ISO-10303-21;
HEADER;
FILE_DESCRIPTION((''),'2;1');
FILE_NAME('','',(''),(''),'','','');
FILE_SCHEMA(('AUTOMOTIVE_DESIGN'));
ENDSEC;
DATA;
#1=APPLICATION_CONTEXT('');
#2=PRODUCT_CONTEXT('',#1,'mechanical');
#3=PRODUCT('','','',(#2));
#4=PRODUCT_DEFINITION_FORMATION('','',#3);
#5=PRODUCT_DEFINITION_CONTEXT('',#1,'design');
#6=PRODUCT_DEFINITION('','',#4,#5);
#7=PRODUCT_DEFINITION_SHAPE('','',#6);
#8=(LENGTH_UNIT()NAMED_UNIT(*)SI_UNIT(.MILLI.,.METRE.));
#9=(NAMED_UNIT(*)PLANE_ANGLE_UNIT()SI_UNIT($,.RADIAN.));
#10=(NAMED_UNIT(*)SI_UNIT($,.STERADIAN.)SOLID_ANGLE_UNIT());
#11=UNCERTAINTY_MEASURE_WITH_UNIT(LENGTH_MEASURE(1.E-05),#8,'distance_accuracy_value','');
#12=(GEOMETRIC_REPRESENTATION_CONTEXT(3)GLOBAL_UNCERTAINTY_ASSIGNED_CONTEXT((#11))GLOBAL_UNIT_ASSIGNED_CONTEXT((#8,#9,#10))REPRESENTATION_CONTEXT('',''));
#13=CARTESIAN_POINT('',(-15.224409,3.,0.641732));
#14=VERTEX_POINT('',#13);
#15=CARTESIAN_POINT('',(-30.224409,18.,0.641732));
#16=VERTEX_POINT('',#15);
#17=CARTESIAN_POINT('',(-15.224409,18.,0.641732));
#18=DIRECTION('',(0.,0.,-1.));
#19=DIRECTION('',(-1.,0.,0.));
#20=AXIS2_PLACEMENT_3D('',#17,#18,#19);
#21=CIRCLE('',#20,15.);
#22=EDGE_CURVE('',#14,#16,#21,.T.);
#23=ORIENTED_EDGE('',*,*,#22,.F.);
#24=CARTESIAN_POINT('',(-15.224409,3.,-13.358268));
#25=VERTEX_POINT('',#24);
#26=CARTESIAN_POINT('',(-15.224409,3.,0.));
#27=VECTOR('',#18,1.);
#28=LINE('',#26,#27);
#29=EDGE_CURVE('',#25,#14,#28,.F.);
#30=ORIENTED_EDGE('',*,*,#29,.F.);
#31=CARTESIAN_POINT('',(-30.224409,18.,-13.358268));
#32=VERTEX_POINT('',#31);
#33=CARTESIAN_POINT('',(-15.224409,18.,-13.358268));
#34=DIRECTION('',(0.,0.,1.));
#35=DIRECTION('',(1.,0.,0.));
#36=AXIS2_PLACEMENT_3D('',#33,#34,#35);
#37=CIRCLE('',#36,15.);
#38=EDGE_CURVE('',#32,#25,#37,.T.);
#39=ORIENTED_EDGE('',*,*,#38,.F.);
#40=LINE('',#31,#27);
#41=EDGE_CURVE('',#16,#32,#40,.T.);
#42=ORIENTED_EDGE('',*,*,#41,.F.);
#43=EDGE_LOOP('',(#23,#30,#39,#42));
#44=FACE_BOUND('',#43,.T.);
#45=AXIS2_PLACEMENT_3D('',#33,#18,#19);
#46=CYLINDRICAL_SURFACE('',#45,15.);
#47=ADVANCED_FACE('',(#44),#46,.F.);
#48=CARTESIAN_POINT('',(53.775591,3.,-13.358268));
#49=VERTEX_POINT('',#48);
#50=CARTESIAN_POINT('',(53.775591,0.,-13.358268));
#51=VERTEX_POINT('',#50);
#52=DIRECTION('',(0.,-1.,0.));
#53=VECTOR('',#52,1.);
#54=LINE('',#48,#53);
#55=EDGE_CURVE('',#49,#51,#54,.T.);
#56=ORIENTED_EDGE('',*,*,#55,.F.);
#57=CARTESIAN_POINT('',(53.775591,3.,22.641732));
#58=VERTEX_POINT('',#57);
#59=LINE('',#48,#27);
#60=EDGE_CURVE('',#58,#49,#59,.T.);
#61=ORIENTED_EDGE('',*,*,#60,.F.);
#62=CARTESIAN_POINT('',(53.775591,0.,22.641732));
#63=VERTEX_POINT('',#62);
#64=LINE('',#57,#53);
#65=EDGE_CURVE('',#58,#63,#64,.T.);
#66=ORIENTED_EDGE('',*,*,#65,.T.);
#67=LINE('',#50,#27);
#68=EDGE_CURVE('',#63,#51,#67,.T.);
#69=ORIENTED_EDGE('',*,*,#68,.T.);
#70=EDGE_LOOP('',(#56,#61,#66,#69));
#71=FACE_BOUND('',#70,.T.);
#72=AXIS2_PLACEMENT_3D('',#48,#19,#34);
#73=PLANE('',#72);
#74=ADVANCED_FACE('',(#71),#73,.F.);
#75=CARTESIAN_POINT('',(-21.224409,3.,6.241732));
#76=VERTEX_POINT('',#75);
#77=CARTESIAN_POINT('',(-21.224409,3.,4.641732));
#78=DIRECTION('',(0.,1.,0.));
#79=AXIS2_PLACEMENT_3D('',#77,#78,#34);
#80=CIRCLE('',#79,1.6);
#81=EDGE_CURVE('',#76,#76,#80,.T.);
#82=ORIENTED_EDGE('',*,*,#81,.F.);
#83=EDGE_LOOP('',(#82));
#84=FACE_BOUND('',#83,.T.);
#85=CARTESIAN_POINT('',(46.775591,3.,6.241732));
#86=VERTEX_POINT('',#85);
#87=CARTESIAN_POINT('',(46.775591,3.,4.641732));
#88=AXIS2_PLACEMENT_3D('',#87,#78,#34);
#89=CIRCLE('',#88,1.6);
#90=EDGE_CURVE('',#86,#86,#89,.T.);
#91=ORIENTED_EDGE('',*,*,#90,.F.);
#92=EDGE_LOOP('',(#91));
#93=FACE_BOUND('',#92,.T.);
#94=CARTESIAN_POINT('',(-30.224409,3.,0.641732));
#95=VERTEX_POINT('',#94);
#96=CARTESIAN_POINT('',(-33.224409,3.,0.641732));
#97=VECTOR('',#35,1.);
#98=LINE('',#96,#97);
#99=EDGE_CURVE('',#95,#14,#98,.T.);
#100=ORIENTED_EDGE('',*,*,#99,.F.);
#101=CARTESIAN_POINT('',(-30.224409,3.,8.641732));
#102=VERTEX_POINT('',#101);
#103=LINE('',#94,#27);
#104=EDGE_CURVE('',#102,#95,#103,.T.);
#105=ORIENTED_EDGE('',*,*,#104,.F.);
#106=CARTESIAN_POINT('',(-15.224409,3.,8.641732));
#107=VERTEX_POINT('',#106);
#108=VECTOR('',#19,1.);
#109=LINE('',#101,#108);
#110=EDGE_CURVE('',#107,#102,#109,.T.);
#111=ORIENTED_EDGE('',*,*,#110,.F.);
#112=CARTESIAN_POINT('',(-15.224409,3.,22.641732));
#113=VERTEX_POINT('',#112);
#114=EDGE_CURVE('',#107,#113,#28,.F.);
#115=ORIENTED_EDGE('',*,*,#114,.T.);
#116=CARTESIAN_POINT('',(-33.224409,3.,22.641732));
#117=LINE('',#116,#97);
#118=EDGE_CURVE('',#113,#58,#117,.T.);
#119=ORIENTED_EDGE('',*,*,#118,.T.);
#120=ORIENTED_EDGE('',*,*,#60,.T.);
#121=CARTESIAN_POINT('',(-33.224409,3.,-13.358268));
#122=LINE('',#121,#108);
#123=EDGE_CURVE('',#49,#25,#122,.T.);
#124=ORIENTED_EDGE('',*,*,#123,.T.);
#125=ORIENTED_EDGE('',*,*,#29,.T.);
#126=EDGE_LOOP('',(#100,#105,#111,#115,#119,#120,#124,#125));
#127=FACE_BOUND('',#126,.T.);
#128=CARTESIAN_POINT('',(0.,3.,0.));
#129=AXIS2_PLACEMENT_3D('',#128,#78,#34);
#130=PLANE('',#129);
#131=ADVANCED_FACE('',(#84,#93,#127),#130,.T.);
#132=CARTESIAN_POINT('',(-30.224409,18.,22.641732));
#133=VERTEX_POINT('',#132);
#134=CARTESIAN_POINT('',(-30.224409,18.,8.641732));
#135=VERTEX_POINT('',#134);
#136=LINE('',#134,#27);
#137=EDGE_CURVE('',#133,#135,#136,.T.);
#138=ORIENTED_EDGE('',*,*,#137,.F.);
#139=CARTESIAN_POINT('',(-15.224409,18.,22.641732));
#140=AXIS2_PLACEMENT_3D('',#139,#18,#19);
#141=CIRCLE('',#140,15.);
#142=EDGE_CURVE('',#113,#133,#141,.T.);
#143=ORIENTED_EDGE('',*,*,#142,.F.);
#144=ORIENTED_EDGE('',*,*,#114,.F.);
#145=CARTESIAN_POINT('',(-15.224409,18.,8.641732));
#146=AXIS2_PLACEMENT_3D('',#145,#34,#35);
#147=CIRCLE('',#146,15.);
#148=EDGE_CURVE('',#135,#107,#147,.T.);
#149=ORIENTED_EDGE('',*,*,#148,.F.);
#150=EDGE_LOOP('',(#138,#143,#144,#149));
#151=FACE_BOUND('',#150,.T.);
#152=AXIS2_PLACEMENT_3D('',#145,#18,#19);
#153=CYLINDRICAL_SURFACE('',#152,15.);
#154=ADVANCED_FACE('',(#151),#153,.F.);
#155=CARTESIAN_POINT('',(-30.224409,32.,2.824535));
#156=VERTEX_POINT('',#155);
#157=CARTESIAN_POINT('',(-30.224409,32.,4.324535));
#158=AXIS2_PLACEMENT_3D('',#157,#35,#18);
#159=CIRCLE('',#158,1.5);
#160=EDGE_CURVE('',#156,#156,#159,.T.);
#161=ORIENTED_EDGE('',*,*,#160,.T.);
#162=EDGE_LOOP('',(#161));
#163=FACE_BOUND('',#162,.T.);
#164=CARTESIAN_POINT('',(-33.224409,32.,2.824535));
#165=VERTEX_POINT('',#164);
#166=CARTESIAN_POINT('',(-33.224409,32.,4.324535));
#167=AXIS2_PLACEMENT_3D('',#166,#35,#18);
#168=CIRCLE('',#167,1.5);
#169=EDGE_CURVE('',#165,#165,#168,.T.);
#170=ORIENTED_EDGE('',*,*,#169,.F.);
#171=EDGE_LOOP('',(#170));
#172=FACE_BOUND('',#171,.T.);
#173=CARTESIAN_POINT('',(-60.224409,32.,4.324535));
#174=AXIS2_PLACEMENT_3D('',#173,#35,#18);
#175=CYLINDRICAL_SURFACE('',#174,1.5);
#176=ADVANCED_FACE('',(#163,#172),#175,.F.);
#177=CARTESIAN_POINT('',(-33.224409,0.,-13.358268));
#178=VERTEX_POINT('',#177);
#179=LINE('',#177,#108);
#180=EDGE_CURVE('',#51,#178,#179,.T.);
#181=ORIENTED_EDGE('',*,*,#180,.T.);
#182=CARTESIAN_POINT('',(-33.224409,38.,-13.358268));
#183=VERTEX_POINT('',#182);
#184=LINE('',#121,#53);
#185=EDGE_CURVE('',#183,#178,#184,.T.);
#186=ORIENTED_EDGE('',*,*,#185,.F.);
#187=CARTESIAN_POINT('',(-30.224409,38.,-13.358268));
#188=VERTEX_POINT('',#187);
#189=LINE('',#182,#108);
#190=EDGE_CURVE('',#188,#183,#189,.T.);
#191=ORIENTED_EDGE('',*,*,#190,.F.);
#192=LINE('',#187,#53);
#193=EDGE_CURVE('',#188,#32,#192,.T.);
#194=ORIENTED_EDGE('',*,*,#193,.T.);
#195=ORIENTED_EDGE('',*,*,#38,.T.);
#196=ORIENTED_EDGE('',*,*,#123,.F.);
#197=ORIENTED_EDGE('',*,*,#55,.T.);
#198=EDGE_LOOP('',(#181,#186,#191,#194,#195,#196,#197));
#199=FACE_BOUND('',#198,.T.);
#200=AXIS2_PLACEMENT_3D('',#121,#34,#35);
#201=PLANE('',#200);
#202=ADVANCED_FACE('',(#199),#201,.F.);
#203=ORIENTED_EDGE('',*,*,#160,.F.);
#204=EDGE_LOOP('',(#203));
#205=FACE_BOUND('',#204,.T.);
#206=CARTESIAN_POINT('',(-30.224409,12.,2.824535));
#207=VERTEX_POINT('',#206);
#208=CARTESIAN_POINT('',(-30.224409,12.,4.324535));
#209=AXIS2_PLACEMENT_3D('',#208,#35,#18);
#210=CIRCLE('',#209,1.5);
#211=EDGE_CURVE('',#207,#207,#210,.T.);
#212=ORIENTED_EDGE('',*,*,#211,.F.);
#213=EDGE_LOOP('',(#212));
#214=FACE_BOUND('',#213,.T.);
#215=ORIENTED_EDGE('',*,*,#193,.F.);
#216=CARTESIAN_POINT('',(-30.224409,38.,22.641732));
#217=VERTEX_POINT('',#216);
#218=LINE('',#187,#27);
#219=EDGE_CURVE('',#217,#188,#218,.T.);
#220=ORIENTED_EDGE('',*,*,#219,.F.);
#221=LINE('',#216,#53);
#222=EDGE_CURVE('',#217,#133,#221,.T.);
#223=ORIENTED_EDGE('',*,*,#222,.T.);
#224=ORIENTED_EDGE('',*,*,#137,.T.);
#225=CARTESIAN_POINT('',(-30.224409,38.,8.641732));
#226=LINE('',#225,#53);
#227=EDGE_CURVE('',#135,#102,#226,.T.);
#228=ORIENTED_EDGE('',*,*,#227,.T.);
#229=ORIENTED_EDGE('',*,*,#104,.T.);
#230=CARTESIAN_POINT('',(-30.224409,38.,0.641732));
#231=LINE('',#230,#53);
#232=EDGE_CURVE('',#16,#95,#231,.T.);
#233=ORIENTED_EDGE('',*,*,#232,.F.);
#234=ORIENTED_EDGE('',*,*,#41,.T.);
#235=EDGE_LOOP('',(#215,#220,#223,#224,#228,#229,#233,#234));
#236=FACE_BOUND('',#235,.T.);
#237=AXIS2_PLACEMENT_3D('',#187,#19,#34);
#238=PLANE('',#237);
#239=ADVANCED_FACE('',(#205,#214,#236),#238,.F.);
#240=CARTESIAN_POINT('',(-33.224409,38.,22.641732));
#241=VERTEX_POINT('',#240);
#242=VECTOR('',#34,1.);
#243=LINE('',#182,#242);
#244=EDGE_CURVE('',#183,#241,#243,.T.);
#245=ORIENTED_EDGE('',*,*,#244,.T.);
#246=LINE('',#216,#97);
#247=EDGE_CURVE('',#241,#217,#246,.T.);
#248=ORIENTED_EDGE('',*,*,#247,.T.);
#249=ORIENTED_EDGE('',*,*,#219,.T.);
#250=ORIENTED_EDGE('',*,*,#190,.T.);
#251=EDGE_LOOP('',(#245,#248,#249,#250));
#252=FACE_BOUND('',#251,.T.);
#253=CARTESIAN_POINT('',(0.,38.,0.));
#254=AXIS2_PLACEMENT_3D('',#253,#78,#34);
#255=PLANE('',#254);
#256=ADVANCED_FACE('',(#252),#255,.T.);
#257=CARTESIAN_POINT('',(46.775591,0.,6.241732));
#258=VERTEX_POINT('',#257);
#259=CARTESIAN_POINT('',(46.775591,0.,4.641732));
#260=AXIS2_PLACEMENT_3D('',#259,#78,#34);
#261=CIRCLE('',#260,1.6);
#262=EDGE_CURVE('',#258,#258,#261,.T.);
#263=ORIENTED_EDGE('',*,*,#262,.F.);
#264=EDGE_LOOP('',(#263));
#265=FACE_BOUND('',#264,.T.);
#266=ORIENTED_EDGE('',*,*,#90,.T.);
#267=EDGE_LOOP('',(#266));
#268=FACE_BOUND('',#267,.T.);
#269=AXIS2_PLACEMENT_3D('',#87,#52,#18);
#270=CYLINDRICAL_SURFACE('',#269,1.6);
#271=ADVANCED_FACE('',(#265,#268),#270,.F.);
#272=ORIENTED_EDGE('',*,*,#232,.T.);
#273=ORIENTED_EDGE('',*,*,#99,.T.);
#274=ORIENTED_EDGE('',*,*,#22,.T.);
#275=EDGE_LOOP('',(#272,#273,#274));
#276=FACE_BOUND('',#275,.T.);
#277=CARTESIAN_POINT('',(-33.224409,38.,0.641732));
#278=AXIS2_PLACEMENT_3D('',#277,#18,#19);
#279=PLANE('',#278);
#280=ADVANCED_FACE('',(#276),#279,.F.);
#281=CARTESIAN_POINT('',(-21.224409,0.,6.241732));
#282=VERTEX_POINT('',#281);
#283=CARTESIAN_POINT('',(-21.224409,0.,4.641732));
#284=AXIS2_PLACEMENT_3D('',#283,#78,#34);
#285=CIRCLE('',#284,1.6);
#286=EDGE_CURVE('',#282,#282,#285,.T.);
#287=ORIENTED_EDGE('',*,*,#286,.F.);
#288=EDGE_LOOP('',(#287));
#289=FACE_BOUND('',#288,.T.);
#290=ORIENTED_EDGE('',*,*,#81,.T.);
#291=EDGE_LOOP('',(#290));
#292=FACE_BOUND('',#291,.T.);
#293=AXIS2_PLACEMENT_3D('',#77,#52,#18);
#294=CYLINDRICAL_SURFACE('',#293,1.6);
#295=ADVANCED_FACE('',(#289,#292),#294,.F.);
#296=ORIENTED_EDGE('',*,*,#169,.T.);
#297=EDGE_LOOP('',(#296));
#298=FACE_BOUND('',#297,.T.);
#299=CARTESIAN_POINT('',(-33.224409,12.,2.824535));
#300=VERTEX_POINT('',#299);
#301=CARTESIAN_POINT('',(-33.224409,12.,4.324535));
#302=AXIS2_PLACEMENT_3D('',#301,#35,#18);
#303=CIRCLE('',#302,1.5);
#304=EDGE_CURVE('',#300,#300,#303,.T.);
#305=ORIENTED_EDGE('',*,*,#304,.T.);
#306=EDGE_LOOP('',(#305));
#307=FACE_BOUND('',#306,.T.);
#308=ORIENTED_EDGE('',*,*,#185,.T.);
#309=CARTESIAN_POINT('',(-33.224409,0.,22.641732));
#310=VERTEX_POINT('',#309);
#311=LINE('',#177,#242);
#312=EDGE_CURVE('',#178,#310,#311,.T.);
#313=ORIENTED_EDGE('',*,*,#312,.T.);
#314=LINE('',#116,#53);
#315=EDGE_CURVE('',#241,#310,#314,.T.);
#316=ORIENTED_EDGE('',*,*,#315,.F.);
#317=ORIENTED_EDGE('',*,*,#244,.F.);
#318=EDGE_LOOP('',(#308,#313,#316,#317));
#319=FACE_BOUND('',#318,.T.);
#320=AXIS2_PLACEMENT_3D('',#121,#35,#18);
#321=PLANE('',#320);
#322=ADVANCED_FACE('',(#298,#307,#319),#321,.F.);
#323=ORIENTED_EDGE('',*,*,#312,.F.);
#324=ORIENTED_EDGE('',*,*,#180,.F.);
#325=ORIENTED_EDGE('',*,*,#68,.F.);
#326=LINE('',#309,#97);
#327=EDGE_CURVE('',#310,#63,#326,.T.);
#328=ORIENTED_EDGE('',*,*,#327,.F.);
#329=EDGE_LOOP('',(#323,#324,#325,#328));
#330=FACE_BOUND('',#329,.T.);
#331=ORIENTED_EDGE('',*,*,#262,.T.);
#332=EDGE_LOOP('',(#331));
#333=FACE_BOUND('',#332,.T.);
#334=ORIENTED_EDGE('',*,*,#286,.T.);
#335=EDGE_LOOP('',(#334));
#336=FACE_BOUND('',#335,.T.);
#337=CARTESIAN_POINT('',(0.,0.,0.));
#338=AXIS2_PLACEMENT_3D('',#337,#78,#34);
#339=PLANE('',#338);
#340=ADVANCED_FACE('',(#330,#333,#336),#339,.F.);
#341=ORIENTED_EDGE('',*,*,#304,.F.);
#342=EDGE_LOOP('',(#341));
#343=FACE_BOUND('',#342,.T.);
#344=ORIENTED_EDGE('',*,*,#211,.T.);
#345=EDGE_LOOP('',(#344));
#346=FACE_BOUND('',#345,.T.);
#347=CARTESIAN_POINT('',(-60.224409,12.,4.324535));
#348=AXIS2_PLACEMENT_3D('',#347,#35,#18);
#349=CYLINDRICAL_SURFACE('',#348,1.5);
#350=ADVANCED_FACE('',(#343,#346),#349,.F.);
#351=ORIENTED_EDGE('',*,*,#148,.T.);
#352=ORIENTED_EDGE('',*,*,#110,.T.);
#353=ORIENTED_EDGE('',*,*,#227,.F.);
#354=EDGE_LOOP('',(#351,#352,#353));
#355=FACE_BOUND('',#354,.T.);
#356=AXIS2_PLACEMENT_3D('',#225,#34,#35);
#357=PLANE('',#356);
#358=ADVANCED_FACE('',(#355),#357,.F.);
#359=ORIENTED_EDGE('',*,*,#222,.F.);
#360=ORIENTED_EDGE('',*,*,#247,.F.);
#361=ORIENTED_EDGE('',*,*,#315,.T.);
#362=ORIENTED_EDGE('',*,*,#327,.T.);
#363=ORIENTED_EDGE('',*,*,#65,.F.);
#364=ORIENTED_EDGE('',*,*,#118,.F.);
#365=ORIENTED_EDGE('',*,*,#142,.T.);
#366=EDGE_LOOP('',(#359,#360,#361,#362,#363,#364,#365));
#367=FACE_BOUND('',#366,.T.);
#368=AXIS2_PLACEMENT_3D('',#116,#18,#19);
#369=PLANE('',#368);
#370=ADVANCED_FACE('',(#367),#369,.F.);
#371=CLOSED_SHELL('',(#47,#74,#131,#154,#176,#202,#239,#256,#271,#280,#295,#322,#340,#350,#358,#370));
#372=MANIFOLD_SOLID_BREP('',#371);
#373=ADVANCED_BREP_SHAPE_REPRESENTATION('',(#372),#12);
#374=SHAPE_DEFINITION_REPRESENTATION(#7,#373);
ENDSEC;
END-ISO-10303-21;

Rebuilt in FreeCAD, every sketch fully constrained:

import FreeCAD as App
import Part
import Sketcher
Q = App.Units.Quantity


def edges_at(feature, points):
    """Names of the edges that pass closest to the given points."""
    edges = feature.Shape.Edges
    near = lambda p: min(range(len(edges)), key=lambda i: edges[i].distToShape(Part.Vertex(*p))[0])
    return sorted({f"Edge{near(p) + 1}" for p in points})


def add_polygon(sketch, points):
    """Adds a closed chain of lines whose ends are joined by coincident constraints."""
    first, n = sketch.GeometryCount, len(points)
    for a, b in zip(points, points[1:] + points[:1]):
        sketch.addGeometry(Part.LineSegment(App.Vector(*a, 0), App.Vector(*b, 0)), False)
    for i in range(n):
        sketch.addConstraint(Sketcher.Constraint("Coincident", first + i, 2, first + (i + 1) % n, 1))

doc = App.newDocument("Part")
body = doc.addObject("PartDesign::Body", "Body")

# Sketch on XZ plane
sketch1 = doc.addObject("Sketcher::SketchObject", "Sketch")
body.addObject(sketch1)
sketch1.AttachmentSupport = (doc.XZ_Plane, [""])
sketch1.MapMode = "FlatFace"
add_polygon(sketch1, [(-33.2, -13.4), (-33.2, 22.6), (53.8, 22.6), (53.8, -13.4)])  # lines 0-3
sketch1.addGeometry(Part.Circle(App.Vector(-21.2, 4.6, 0), App.Vector(0, 0, 1), 1.6), False)  # 4
sketch1.addGeometry(Part.Circle(App.Vector(46.8, 4.6, 0), App.Vector(0, 0, 1), 1.6), False)  # 5
sketch1.addConstraint(Sketcher.Constraint("Vertical", 0))
sketch1.addConstraint(Sketcher.Constraint("Horizontal", 1))
sketch1.addConstraint(Sketcher.Constraint("Vertical", 2))
sketch1.addConstraint(Sketcher.Constraint("Horizontal", 3))
sketch1.addConstraint(Sketcher.Constraint("Equal", 4, 5))
sketch1.addConstraint(Sketcher.Constraint("Horizontal", 4, 3, 5, 3))
sketch1.addConstraint(Sketcher.Constraint("Diameter", 4, Q("3.2 mm")))
sketch1.addConstraint(Sketcher.Constraint("DistanceX", 1, 1, 1, 2, Q("87 mm")))
sketch1.addConstraint(Sketcher.Constraint("DistanceY", 0, 1, 0, 2, Q("36 mm")))
sketch1.addConstraint(Sketcher.Constraint("DistanceX", 4, 3, 5, 3, Q("68 mm")))
sketch1.addConstraint(Sketcher.Constraint("DistanceX", 0, 2, 4, 3, Q("12 mm")))
sketch1.addConstraint(Sketcher.Constraint("DistanceY", 4, 3, 0, 2, Q("18 mm")))
sketch1.addConstraint(Sketcher.Constraint("DistanceX", 4, 3, -1, 1, Q("21.224409 mm")))
sketch1.addConstraint(Sketcher.Constraint("DistanceY", -1, 1, 4, 3, Q("4.641732 mm")))
pad1 = doc.addObject("PartDesign::Pad", "Pad")
body.addObject(pad1)
pad1.Profile = sketch1
pad1.Length = 3
pad1.Reversed = True

# Sketch on XZ plane
sketch2 = doc.addObject("Sketcher::SketchObject", "Sketch001")
body.addObject(sketch2)
sketch2.AttachmentSupport = (doc.XZ_Plane, [""])
sketch2.MapMode = "FlatFace"
sketch2.AttachmentOffset = App.Placement(App.Vector(0, 0, -3), App.Rotation())
add_polygon(sketch2, [(-33.2, -13.4), (-33.2, 0.6), (-30.2, 0.6), (-30.2, -13.4)])  # lines 0-3
add_polygon(sketch2, [(-33.2, 8.6), (-33.2, 22.6), (-30.2, 22.6), (-30.2, 8.6)])  # lines 4-7
sketch2.addConstraint(Sketcher.Constraint("Vertical", 0))
sketch2.addConstraint(Sketcher.Constraint("Horizontal", 1))
sketch2.addConstraint(Sketcher.Constraint("Vertical", 2))
sketch2.addConstraint(Sketcher.Constraint("Horizontal", 3))
sketch2.addConstraint(Sketcher.Constraint("Vertical", 4))
sketch2.addConstraint(Sketcher.Constraint("Horizontal", 5))
sketch2.addConstraint(Sketcher.Constraint("Vertical", 6))
sketch2.addConstraint(Sketcher.Constraint("Horizontal", 7))
sketch2.addConstraint(Sketcher.Constraint("Vertical", 3, 2, 4, 2))
sketch2.addConstraint(Sketcher.Constraint("Vertical", 2, 2, 5, 2))
sketch2.addConstraint(Sketcher.Constraint("Equal", 2, 4))
sketch2.addConstraint(Sketcher.Constraint("DistanceX", 1, 1, 1, 2, Q("3 mm")))
sketch2.addConstraint(Sketcher.Constraint("DistanceY", 0, 1, 0, 2, Q("14 mm")))
sketch2.addConstraint(Sketcher.Constraint("DistanceY", 0, 2, 4, 2, Q("22 mm")))
sketch2.addConstraint(Sketcher.Constraint("DistanceX", 0, 2, -1, 1, Q("33.224409 mm")))
sketch2.addConstraint(Sketcher.Constraint("DistanceY", -1, 1, 0, 2, Q("0.641732 mm")))
pad2 = doc.addObject("PartDesign::Pad", "Pad001")
body.addObject(pad2)
pad2.Profile = sketch2
pad2.Length = 35
pad2.Reversed = True
doc.recompute()

fillet = doc.addObject("PartDesign::Fillet", "Fillet")
body.addObject(fillet)
fillet.Base = (pad2, edges_at(pad2, [(-30.224, 3, -6.358), (-30.224, 3, 15.642)]))
fillet.Radius = 15

# Sketch on XZ plane
sketch3 = doc.addObject("Sketcher::SketchObject", "Sketch002")
body.addObject(sketch3)
sketch3.AttachmentSupport = (doc.XZ_Plane, [""])
sketch3.MapMode = "FlatFace"
sketch3.AttachmentOffset = App.Placement(App.Vector(0, 0, -3), App.Rotation())
add_polygon(sketch3, [(-33.2, 0.6), (-33.2, 8.6), (-30.2, 8.6), (-30.2, 0.6)])  # lines 0-3
sketch3.addConstraint(Sketcher.Constraint("Vertical", 0))
sketch3.addConstraint(Sketcher.Constraint("Horizontal", 1))
sketch3.addConstraint(Sketcher.Constraint("Vertical", 2))
sketch3.addConstraint(Sketcher.Constraint("Horizontal", 3))
sketch3.addConstraint(Sketcher.Constraint("DistanceX", 1, 1, 1, 2, Q("3 mm")))
sketch3.addConstraint(Sketcher.Constraint("DistanceY", 0, 1, 0, 2, Q("8 mm")))
sketch3.addConstraint(Sketcher.Constraint("DistanceX", 0, 2, -1, 1, Q("33.224409 mm")))
sketch3.addConstraint(Sketcher.Constraint("DistanceY", -1, 1, 0, 2, Q("8.641732 mm")))
pad3 = doc.addObject("PartDesign::Pad", "Pad002")
body.addObject(pad3)
pad3.Profile = sketch3
pad3.Length = 35
pad3.Reversed = True

# Sketch on YZ plane
sketch4 = doc.addObject("Sketcher::SketchObject", "Sketch003")
body.addObject(sketch4)
sketch4.AttachmentSupport = (doc.YZ_Plane, [""])
sketch4.MapMode = "FlatFace"
sketch4.AttachmentOffset = App.Placement(App.Vector(0, 0, -30.224409), App.Rotation())
sketch4.addGeometry(Part.Circle(App.Vector(32, 4.3, 0), App.Vector(0, 0, 1), 1.5), False)
sketch4.addGeometry(Part.Circle(App.Vector(12, 4.3, 0), App.Vector(0, 0, 1), 1.5), False)
sketch4.addConstraint(Sketcher.Constraint("Equal", 0, 1))
sketch4.addConstraint(Sketcher.Constraint("Horizontal", 0, 3, 1, 3))
sketch4.addConstraint(Sketcher.Constraint("Diameter", 0, Q("3 mm")))
sketch4.addConstraint(Sketcher.Constraint("DistanceX", -1, 1, 0, 3, Q("32 mm")))
sketch4.addConstraint(Sketcher.Constraint("DistanceX", -1, 1, 1, 3, Q("12 mm")))
sketch4.addConstraint(Sketcher.Constraint("DistanceY", -1, 1, 0, 3, Q("4.324535 mm")))
pocket1 = doc.addObject("PartDesign::Pocket", "Pocket")
body.addObject(pocket1)
pocket1.Profile = sketch4
pocket1.Length = 30

doc.recompute()
